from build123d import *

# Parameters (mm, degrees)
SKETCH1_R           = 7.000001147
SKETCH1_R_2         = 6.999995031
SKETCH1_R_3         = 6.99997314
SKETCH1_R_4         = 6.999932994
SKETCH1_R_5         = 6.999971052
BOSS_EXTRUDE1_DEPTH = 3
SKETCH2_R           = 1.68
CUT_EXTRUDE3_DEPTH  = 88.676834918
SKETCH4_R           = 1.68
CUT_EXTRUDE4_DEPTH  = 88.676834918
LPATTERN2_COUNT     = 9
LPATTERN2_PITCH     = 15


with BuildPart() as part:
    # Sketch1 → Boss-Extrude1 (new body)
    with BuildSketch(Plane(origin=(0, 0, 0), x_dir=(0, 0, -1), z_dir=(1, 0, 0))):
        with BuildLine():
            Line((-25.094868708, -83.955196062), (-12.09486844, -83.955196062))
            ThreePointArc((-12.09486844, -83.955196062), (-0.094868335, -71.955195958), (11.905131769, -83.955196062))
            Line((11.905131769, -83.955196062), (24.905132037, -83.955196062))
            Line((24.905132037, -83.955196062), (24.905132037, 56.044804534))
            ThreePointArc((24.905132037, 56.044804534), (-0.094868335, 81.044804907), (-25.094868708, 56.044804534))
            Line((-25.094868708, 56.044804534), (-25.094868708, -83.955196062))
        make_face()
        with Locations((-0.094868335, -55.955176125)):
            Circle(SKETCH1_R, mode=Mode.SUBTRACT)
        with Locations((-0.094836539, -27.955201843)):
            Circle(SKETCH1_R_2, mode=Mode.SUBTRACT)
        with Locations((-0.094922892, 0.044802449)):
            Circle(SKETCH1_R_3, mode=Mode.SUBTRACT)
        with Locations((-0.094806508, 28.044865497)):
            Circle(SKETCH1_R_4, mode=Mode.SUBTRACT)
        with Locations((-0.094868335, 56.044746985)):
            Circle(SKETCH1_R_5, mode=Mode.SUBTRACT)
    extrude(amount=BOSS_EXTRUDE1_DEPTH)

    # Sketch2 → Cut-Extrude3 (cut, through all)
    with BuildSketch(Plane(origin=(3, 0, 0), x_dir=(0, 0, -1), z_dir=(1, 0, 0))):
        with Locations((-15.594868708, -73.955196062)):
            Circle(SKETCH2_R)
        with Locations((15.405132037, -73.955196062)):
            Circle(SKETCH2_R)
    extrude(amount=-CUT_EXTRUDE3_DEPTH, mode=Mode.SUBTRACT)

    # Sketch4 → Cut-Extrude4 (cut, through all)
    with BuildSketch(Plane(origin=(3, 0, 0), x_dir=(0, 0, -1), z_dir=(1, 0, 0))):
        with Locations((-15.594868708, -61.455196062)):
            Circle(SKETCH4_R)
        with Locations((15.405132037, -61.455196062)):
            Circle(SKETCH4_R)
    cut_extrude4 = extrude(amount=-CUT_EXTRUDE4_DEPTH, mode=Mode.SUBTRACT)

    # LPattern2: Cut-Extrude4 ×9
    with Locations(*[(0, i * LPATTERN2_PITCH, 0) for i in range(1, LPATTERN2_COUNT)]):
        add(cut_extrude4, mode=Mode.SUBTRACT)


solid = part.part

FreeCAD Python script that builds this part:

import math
import FreeCAD as App
import Part
import Sketcher

V = App.Vector
Q = App.Units.Quantity

doc = App.newDocument("Part")
params = doc.addObject("Spreadsheet::Sheet", "Params")
for row, (alias, value) in enumerate([
    ("sketch1_radius", "12 mm"),
    ("sketch1_radius2", "25 mm"),
    ("sketch1_width", "140.000001 mm"),
    ("pad1_length", "3 mm"),
    ("sketch2_diameter", "3.36 mm"),
    ("sketch3_diameter", "3.36 mm"),
    ("linearpattern_pitch", "15 mm"),
], start=1):
    params.set(f"A{row}", alias)
    params.set(f"B{row}", "=" + value)
    params.setAlias(f"B{row}", alias)

body = doc.addObject("PartDesign::Body", "Body")

sketch1 = body.newObject("Sketcher::SketchObject", "Sketch")
sketch1.AttachmentSupport = (doc.getObject("YZ_Plane"), [""])
sketch1.MapMode = "FlatFace"
sketch1.addGeometry([
    Part.LineSegment(V(-84, 25, 0), V(-84, 12, 0)),
    Part.ArcOfCircle(Part.Circle(V(-84, 0, 0), V(0, 0, 1), 12), math.radians(-90), math.radians(90)),
    Part.LineSegment(V(-84, -12, 0), V(-84, -25, 0)),
    Part.LineSegment(V(-84, -25, 0), V(56, -25, 0)),
    Part.ArcOfCircle(Part.Circle(V(56, 0, 0), V(0, 0, 1), 25), math.radians(-90), math.radians(90)),
    Part.LineSegment(V(56, 25, 0), V(-84, 25, 0)),
    Part.Circle(V(-56, 0, 0), V(0, 0, 1), 7),
    Part.Circle(V(-28, 0, 0), V(0, 0, 1), 7),
    Part.Circle(V(0, 0, 0), V(0, 0, 1), 7),
    Part.Circle(V(28, 0, 0), V(0, 0, 1), 7),
    Part.Circle(V(56, 0, 0), V(0, 0, 1), 7),
], False)
sketch1.addConstraint([
    Sketcher.Constraint("Coincident", 0, 2, 1, 2),
    Sketcher.Constraint("Coincident", 1, 1, 2, 1),
    Sketcher.Constraint("Coincident", 2, 2, 3, 1),
    Sketcher.Constraint("Tangent", 3, 2, 4, 1),
    Sketcher.Constraint("Tangent", 4, 2, 5, 1),
    Sketcher.Constraint("Coincident", 5, 2, 0, 1),
    Sketcher.Constraint("Vertical", 0),
    Sketcher.Constraint("Vertical", 2),
    Sketcher.Constraint("Horizontal", 3),
    Sketcher.Constraint("Horizontal", 5),
    Sketcher.Constraint("Horizontal", 1, 3, 4, 3),
    Sketcher.Constraint("Horizontal", 4, 3, 6, 3),
    Sketcher.Constraint("Horizontal", 6, 3, 10, 3),
    Sketcher.Constraint("Vertical", 1, 3, 0, 2),
    Sketcher.Constraint("Vertical", 0, 2, 1, 1),
    Sketcher.Constraint("Radius", 1, Q("12 mm")),
    Sketcher.Constraint("Radius", 4, Q("25 mm")),
    Sketcher.Constraint("DistanceX", 3, 1, 3, 2, Q("140.000001 mm")),
    Sketcher.Constraint("DistanceX", 1, 3, 8, 3, Q("83.999999 mm")),
    Sketcher.Constraint("Diameter", 7, Q("13.99999 mm")),
    Sketcher.Constraint("Diameter", 6, Q("14.000002 mm")),
    Sketcher.Constraint("Diameter", 8, Q("13.999946 mm")),
    Sketcher.Constraint("Diameter", 9, Q("13.999866 mm")),
    Sketcher.Constraint("Diameter", 10, Q("13.999942 mm")),
    Sketcher.Constraint("DistanceX", 7, 3, -1, 1, Q("27.955202 mm")),
    Sketcher.Constraint("DistanceY", -1, 1, 1, 3, Q("0.094868 mm")),
    Sketcher.Constraint("DistanceX", 1, 3, 6, 3, Q("28.00002 mm")),
    Sketcher.Constraint("DistanceX", 9, 3, 4, 3, Q("27.999939 mm")),
    Sketcher.Constraint("DistanceX", 9, 3, 10, 3, Q("27.999881 mm")),
    Sketcher.Constraint("DistanceX", 7, 3, 10, 3, Q("83.999949 mm")),
    Sketcher.Constraint("DistanceY", 7, 3, 0, 2, Q("12.000032 mm")),
    Sketcher.Constraint("DistanceY", 9, 3, 0, 2, Q("12.000062 mm")),
    Sketcher.Constraint("DistanceY", -1, 1, 8, 3, Q("0.094923 mm")),
])
sketch1.setExpression("Constraints[15]", "Params.sketch1_radius")
sketch1.setExpression("Constraints[16]", "Params.sketch1_radius2")
sketch1.setExpression("Constraints[17]", "Params.sketch1_width")
pad1 = body.newObject("PartDesign::Pad", "Pad")
pad1.Profile = sketch1
pad1.setExpression("Length", "Params.pad1_length")

sketch2 = body.newObject("Sketcher::SketchObject", "Sketch001")
sketch2.AttachmentSupport = (doc.getObject("YZ_Plane"), [""])
sketch2.MapMode = "FlatFace"
sketch2.AttachmentOffset = App.Placement(V(0, 0, 3), App.Rotation())
sketch2.addGeometry([
    Part.Circle(V(-74, 15.6, 0), V(0, 0, 1), 1.7),
    Part.Circle(V(-74, -15.4, 0), V(0, 0, 1), 1.7),
], False)
sketch2.addConstraint([
    Sketcher.Constraint("Equal", 0, 1),
    Sketcher.Constraint("Vertical", 0, 3, 1, 3),
    Sketcher.Constraint("Diameter", 0, Q("3.36 mm")),
    Sketcher.Constraint("DistanceY", 1, 3, 0, 3, Q("31.000001 mm")),
    Sketcher.Constraint("DistanceY", -1, 1, 0, 3, Q("15.594869 mm")),
    Sketcher.Constraint("DistanceX", 0, 3, -1, 1, Q("73.955196 mm")),
])
sketch2.setExpression("Constraints[2]", "Params.sketch2_diameter")
pocket1 = body.newObject("PartDesign::Pocket", "Pocket")
pocket1.Profile = sketch2
pocket1.Type = "ThroughAll"

sketch3 = body.newObject("Sketcher::SketchObject", "Sketch002")
sketch3.AttachmentSupport = (doc.getObject("YZ_Plane"), [""])
sketch3.MapMode = "FlatFace"
sketch3.AttachmentOffset = App.Placement(V(0, 0, 3), App.Rotation())
sketch3.addGeometry([
    Part.Circle(V(-61.5, 15.6, 0), V(0, 0, 1), 1.7),
    Part.Circle(V(-61.5, -15.4, 0), V(0, 0, 1), 1.7),
], False)
sketch3.addConstraint([
    Sketcher.Constraint("Equal", 0, 1),
    Sketcher.Constraint("Vertical", 0, 3, 1, 3),
    Sketcher.Constraint("Diameter", 0, Q("3.36 mm")),
    Sketcher.Constraint("DistanceY", 1, 3, 0, 3, Q("31.000001 mm")),
    Sketcher.Constraint("DistanceY", -1, 1, 0, 3, Q("15.594869 mm")),
    Sketcher.Constraint("DistanceX", 0, 3, -1, 1, Q("61.455196 mm")),
])
sketch3.setExpression("Constraints[2]", "Params.sketch3_diameter")
pocket2 = body.newObject("PartDesign::Pocket", "Pocket001")
pocket2.Profile = sketch3
pocket2.Type = "ThroughAll"
doc.recompute()

linearpattern = body.newObject("PartDesign::LinearPattern", "LinearPattern")
linearpattern.Originals = [pocket2]
linearpattern.Direction = (doc.getObject("Y_Axis"), [""])
linearpattern.Mode = "offset"
linearpattern.setExpression("Offset", "Params.linearpattern_pitch")
linearpattern.Occurrences = 9
body.Tip = linearpattern

doc.recompute()
